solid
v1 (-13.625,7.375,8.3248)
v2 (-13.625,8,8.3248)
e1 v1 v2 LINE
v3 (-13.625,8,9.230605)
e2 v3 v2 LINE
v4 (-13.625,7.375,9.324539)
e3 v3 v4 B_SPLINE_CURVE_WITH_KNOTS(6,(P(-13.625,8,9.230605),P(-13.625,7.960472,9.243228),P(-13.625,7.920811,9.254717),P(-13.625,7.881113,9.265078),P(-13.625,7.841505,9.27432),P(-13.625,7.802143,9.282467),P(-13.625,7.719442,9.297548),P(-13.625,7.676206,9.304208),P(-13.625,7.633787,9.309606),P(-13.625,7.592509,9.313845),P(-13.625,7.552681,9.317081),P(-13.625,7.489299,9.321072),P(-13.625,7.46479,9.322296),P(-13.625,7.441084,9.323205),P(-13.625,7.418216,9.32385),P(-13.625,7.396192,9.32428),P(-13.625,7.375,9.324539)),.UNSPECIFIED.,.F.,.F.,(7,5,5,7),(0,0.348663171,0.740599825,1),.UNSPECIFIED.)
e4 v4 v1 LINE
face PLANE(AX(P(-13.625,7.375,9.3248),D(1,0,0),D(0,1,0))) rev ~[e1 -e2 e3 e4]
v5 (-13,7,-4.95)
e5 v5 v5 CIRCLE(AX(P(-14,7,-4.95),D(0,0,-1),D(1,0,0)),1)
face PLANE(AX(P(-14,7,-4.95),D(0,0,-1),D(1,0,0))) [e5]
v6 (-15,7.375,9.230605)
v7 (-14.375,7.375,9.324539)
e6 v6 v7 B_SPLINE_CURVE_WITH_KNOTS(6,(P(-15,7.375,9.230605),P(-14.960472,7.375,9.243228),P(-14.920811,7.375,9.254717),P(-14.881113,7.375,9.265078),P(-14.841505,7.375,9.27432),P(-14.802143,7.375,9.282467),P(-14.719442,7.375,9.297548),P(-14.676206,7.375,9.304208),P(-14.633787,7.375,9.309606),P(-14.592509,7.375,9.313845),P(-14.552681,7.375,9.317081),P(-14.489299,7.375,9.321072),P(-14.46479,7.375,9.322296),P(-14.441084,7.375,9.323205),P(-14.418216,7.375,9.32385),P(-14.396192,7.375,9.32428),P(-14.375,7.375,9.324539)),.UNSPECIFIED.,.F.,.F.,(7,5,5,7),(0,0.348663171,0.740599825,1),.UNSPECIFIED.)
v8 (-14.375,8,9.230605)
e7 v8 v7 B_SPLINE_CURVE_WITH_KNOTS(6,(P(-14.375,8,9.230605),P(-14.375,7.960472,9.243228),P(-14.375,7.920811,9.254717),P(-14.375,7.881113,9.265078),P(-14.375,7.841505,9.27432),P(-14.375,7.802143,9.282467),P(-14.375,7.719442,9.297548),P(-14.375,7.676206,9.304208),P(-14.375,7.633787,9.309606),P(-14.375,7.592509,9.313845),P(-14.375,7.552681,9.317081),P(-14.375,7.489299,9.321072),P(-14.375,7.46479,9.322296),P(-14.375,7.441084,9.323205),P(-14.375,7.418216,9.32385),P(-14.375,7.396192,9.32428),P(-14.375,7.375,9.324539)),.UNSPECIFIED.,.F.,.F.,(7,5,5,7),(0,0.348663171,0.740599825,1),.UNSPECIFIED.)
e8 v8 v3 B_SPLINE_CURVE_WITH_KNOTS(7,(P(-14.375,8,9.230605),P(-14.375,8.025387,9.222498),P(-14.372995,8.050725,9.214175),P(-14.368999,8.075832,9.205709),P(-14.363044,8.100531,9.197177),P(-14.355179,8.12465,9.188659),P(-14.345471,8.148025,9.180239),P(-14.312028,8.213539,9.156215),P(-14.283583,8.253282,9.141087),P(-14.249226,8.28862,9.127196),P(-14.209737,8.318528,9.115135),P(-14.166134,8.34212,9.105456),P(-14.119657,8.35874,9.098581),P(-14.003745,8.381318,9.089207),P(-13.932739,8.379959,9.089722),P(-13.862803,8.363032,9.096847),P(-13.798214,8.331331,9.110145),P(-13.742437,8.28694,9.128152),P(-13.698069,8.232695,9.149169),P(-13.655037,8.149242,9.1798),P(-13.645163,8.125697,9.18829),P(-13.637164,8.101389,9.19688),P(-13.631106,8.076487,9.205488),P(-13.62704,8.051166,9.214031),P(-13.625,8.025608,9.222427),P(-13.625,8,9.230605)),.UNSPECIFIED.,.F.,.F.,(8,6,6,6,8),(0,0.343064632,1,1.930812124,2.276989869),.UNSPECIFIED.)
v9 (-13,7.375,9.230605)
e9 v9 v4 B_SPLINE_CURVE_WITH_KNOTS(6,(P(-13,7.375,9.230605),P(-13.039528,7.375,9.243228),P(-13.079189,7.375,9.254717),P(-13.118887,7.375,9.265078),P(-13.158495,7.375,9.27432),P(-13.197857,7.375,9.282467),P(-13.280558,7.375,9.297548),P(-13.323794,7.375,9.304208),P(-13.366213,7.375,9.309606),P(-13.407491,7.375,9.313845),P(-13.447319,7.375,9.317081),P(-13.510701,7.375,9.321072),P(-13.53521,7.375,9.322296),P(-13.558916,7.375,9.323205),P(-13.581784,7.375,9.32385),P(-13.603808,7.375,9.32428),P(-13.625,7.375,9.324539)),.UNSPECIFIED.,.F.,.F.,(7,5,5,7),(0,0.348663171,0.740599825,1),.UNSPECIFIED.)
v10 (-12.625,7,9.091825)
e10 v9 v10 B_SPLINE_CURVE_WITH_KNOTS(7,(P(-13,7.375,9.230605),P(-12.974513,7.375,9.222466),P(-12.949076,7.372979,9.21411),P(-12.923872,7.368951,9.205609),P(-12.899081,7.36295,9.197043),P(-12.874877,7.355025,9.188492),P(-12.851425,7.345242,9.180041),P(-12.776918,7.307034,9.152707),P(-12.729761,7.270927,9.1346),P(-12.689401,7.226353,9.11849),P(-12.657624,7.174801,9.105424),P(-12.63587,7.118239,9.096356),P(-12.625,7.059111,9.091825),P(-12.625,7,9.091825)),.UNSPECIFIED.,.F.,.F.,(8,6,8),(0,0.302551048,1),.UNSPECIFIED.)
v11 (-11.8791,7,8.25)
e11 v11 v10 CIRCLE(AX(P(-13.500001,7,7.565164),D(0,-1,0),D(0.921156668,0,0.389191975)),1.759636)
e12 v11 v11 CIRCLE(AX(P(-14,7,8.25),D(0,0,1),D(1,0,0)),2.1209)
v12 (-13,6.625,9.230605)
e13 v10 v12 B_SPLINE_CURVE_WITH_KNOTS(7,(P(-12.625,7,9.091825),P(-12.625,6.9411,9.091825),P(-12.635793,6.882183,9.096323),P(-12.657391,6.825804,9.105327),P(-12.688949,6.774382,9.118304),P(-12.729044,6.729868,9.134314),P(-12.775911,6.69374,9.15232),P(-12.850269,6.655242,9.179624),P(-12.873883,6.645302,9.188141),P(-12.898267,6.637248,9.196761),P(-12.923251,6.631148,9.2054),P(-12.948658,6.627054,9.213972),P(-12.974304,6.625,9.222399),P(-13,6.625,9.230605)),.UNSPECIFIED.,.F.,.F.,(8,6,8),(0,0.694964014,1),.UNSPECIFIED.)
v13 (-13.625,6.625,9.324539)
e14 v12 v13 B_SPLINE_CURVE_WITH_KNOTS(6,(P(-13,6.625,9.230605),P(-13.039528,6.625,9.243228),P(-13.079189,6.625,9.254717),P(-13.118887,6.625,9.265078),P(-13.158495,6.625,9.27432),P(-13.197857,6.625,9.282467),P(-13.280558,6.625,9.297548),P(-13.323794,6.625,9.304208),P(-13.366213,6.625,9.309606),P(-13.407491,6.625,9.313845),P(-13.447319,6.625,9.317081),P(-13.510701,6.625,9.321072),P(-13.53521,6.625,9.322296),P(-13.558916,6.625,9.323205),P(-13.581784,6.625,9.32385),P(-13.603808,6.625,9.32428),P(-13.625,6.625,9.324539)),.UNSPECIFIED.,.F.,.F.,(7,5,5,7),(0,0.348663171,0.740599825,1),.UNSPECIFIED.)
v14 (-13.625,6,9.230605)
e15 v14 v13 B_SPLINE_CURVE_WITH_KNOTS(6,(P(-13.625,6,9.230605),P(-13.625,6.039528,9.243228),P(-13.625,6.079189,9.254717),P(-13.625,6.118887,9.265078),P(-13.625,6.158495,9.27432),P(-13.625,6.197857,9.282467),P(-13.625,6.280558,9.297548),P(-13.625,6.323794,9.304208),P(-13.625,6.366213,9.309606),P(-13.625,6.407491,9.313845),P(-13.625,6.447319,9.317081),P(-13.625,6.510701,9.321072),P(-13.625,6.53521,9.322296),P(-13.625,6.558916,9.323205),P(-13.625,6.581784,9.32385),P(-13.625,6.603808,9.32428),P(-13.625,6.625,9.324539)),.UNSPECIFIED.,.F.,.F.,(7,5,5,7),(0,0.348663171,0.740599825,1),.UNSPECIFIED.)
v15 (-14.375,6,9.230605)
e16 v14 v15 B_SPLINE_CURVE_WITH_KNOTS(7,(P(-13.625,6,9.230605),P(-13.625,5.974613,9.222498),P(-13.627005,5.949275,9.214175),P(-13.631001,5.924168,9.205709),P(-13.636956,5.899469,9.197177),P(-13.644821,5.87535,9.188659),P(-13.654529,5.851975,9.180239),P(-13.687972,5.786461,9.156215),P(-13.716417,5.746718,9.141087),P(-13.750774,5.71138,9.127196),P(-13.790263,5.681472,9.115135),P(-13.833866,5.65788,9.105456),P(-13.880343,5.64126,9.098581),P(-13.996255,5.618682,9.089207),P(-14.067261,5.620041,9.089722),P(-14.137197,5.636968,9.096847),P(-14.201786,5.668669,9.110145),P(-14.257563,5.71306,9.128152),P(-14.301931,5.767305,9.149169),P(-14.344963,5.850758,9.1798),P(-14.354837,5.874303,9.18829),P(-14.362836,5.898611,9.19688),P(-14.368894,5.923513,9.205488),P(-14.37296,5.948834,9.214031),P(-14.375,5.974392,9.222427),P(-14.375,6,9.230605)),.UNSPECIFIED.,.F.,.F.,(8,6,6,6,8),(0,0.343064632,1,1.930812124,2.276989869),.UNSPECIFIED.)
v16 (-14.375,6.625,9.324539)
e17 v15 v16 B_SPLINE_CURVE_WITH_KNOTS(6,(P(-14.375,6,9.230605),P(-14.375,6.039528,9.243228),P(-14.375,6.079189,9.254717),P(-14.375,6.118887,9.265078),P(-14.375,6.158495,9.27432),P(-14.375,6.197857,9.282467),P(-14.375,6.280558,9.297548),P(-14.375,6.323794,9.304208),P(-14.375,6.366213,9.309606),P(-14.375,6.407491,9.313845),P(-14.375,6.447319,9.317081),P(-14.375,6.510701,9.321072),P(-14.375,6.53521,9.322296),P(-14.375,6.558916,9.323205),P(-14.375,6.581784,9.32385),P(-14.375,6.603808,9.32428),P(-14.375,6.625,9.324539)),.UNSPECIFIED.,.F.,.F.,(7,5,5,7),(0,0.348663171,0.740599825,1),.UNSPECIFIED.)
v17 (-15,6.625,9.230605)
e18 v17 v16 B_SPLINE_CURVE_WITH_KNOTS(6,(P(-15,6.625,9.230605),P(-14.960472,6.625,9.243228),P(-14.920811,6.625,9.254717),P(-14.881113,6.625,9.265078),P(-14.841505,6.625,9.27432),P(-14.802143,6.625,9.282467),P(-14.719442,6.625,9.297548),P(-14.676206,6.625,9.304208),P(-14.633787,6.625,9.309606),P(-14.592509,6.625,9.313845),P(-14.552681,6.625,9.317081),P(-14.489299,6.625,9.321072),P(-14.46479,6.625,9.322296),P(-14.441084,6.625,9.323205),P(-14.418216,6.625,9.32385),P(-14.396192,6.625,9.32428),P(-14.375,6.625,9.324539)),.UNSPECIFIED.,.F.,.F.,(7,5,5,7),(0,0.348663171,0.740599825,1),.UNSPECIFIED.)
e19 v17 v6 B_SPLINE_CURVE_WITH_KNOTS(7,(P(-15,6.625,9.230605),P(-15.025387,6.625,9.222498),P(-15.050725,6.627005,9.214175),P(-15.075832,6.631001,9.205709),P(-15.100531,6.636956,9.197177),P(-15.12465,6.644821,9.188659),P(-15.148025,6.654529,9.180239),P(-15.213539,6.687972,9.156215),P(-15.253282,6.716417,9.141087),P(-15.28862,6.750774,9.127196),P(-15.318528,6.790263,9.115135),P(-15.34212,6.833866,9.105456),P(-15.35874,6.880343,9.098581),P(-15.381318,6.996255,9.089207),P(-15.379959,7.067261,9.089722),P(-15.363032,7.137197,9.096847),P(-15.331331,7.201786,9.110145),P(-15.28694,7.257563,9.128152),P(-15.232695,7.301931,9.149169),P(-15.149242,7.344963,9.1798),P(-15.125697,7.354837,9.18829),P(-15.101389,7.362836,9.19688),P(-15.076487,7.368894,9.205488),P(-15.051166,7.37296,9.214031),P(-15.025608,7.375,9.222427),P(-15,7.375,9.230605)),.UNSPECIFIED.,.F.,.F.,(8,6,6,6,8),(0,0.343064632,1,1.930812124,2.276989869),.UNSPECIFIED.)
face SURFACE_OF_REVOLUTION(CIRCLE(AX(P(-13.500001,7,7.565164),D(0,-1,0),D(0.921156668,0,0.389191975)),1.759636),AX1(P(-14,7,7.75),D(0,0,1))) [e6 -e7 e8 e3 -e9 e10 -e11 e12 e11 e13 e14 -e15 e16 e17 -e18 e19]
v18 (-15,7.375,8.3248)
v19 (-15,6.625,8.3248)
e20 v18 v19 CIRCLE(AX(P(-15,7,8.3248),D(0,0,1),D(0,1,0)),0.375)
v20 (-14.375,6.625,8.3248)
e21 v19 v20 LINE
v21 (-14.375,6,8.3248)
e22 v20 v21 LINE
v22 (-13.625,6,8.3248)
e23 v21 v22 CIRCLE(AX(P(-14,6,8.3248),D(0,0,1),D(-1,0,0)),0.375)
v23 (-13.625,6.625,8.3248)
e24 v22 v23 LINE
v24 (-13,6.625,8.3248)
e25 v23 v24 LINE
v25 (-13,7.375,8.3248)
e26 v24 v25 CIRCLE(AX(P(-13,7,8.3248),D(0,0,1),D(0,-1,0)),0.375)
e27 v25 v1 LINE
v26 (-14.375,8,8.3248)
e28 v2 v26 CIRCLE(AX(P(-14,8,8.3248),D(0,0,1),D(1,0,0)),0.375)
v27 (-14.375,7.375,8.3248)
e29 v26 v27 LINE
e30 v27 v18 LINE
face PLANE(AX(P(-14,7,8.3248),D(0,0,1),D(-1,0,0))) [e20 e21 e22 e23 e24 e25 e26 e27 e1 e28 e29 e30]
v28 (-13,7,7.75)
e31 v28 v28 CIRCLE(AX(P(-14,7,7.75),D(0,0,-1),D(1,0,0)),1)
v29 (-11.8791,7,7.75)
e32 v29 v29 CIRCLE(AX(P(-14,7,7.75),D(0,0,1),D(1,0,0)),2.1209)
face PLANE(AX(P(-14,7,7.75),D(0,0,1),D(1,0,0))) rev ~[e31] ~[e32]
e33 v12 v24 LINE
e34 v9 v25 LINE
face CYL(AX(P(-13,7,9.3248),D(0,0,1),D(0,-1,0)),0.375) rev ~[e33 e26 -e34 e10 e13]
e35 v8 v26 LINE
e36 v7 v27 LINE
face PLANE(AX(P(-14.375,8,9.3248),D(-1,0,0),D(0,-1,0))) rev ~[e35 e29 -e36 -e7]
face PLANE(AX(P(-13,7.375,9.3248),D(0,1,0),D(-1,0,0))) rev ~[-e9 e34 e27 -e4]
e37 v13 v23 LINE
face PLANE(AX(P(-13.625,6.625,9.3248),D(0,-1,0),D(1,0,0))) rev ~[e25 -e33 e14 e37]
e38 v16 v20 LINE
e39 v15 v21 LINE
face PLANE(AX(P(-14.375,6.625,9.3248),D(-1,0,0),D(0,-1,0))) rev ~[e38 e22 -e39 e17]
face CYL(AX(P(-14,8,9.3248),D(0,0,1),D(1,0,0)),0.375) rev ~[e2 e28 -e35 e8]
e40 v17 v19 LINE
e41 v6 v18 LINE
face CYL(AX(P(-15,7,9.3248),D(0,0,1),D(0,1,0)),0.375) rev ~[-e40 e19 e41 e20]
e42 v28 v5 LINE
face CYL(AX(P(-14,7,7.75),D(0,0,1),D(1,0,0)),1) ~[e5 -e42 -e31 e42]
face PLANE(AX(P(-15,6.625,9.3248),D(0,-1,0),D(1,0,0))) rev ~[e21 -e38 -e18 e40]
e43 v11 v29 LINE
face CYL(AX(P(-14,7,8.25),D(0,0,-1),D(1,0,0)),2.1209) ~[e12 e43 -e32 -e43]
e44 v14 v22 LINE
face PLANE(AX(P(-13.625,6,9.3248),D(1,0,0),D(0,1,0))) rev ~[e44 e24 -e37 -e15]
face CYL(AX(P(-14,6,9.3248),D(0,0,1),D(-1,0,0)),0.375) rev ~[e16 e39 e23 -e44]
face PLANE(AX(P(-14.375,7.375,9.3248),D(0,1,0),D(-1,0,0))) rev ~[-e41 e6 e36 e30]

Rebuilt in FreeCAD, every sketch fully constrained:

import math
import FreeCAD as App
import Part
import Sketcher

V = App.Vector

doc = App.newDocument("Part")
body = doc.addObject("PartDesign::Body", "Body")

sketch1 = body.newObject("Sketcher::SketchObject", "Sketch")
sketch1.AttachmentSupport = (doc.getObject("XZ_Plane"), [""])
sketch1.MapMode = "FlatFace"
sketch1.addGeometry(Part.LineSegment(V(0, 1.6, 0), V(0, 0, 0)), False)
sketch1.addGeometry(Part.LineSegment(V(0, 0, 0), V(2.1, 0, 0)), False)
sketch1.addGeometry(Part.LineSegment(V(2.1, 0, 0), V(2.1, 0.5, 0)), False)
sketch1.addGeometry(Part.ArcOfCircle(Part.Circle(V(0.5, -0.2, 0), V(0, 0, 1), 1.8), math.radians(23), math.radians(90)), False)
sketch1.addGeometry(Part.LineSegment(V(0.5, 1.6, 0), V(0, 1.6, 0)), False)
sketch1.addConstraint(Sketcher.Constraint("Coincident", 0, 2, 1, 1))
sketch1.addConstraint(Sketcher.Constraint("Coincident", 1, 2, 2, 1))
sketch1.addConstraint(Sketcher.Constraint("Coincident", 2, 2, 3, 1))
sketch1.addConstraint(Sketcher.Constraint("Tangent", 3, 2, 4, 1))
sketch1.addConstraint(Sketcher.Constraint("Coincident", 4, 2, 0, 1))
sketch1.addConstraint(Sketcher.Constraint("Vertical", 0))
sketch1.addConstraint(Sketcher.Constraint("Horizontal", 1))
sketch1.addConstraint(Sketcher.Constraint("Vertical", 2))
sketch1.addConstraint(Sketcher.Constraint("Horizontal", 4))
sketch1.addConstraint(Sketcher.Constraint("Coincident", 0, 2, -1, 1))
sketch1.addConstraint(Sketcher.Constraint("Equal", 4, 2))
sketch1.addConstraint(Sketcher.Constraint("DistanceX", 4, 2, 4, 1, 0.5))
sketch1.addConstraint(Sketcher.Constraint("DistanceX", 1, 1, 1, 2, 2.1209))
sketch1.addConstraint(Sketcher.Constraint("DistanceY", 0, 2, 0, 1, 1.5748))
revolution = body.newObject("PartDesign::Revolution", "Revolution")
revolution.Profile = sketch1
revolution.ReferenceAxis = (sketch1, ["V_Axis"])
revolution.Angle = 360

sketch2 = body.newObject("Sketcher::SketchObject", "Sketch001")
sketch2.AttachmentSupport = (doc.getObject("XY_Plane"), [""])
sketch2.MapMode = "FlatFace"
sketch2.AttachmentOffset = App.Placement(V(0, 0, 1.5748), App.Rotation())
sketch2.addGeometry(Part.ArcOfCircle(Part.Circle(V(0, -1, 0), V(0, 0, 1), 0.38), math.radians(180), math.radians(360)), False)
sketch2.addGeometry(Part.LineSegment(V(0.38, -1, 0), V(0.38, -0.38, 0)), False)
sketch2.addGeometry(Part.LineSegment(V(0.38, -0.38, 0), V(1, -0.38, 0)), False)
sketch2.addGeometry(Part.ArcOfCircle(Part.Circle(V(1, 0, 0), V(0, 0, 1), 0.38), math.radians(-90), math.radians(90)), False)
sketch2.addGeometry(Part.LineSegment(V(1, 0.38, 0), V(0.38, 0.38, 0)), False)
sketch2.addGeometry(Part.LineSegment(V(0.38, 0.38, 0), V(0.38, 1, 0)), False)
sketch2.addGeometry(Part.ArcOfCircle(Part.Circle(V(0, 1, 0), V(0, 0, 1), 0.38), math.radians(0), math.radians(180)), False)
sketch2.addGeometry(Part.LineSegment(V(-0.38, 1, 0), V(-0.38, 0.38, 0)), False)
sketch2.addGeometry(Part.LineSegment(V(-0.38, 0.38, 0), V(-1, 0.38, 0)), False)
sketch2.addGeometry(Part.ArcOfCircle(Part.Circle(V(-1, 0, 0), V(0, 0, 1), 0.38), math.radians(90), math.radians(270)), False)
sketch2.addGeometry(Part.LineSegment(V(-1, -0.38, 0), V(-0.38, -0.38, 0)), False)
sketch2.addGeometry(Part.LineSegment(V(-0.38, -0.38, 0), V(-0.38, -1, 0)), False)
sketch2.addConstraint(Sketcher.Constraint("Tangent", 0, 2, 1, 1))
sketch2.addConstraint(Sketcher.Constraint("Coincident", 1, 2, 2, 1))
sketch2.addConstraint(Sketcher.Constraint("Tangent", 2, 2, 3, 1))
sketch2.addConstraint(Sketcher.Constraint("Tangent", 3, 2, 4, 1))
sketch2.addConstraint(Sketcher.Constraint("Coincident", 4, 2, 5, 1))
sketch2.addConstraint(Sketcher.Constraint("Tangent", 5, 2, 6, 1))
sketch2.addConstraint(Sketcher.Constraint("Tangent", 6, 2, 7, 1))
sketch2.addConstraint(Sketcher.Constraint("Coincident", 7, 2, 8, 1))
sketch2.addConstraint(Sketcher.Constraint("Tangent", 8, 2, 9, 1))
sketch2.addConstraint(Sketcher.Constraint("Tangent", 9, 2, 10, 1))
sketch2.addConstraint(Sketcher.Constraint("Coincident", 10, 2, 11, 1))
sketch2.addConstraint(Sketcher.Constraint("Tangent", 11, 2, 0, 1))
sketch2.addConstraint(Sketcher.Constraint("Vertical", 1))
sketch2.addConstraint(Sketcher.Constraint("Horizontal", 2))
sketch2.addConstraint(Sketcher.Constraint("Horizontal", 4))
sketch2.addConstraint(Sketcher.Constraint("Vertical", 5))
sketch2.addConstraint(Sketcher.Constraint("Vertical", 7))
sketch2.addConstraint(Sketcher.Constraint("Horizontal", 8))
sketch2.addConstraint(Sketcher.Constraint("Horizontal", 10))
sketch2.addConstraint(Sketcher.Constraint("Vertical", 11))
sketch2.addConstraint(Sketcher.Constraint("Equal", 0, 3))
sketch2.addConstraint(Sketcher.Constraint("Equal", 3, 6))
sketch2.addConstraint(Sketcher.Constraint("Equal", 6, 9))
sketch2.addConstraint(Sketcher.Constraint("Symmetric", 0, 3, 6, 3, -1, 1))
sketch2.addConstraint(Sketcher.Constraint("Symmetric", 3, 3, 9, 3, -1, 1))
sketch2.addConstraint(Sketcher.Constraint("Symmetric", 4, 2, 7, 2, -2))
sketch2.addConstraint(Sketcher.Constraint("Equal", 10, 1))
sketch2.addConstraint(Sketcher.Constraint("DistanceY", 0, 3, -1, 1, 1.0))
sketch2.addConstraint(Sketcher.Constraint("Radius", 0, 0.375))
pocket1 = body.newObject("PartDesign::Pocket", "Pocket")
pocket1.Profile = sketch2
pocket1.Length = 1

sketch3 = body.newObject("Sketcher::SketchObject", "Sketch002")
sketch3.AttachmentSupport = (doc.getObject("XY_Plane"), [""])
sketch3.MapMode = "FlatFace"
sketch3.addGeometry(Part.Circle(V(0, 0, 0), V(0, 0, 1), 1), False)
sketch3.addConstraint(Sketcher.Constraint("Coincident", 0, 3, -1, 1))
sketch3.addConstraint(Sketcher.Constraint("Diameter", 0, 2.0))
pad1 = body.newObject("PartDesign::Pad", "Pad")
pad1.Profile = sketch3
pad1.Length = 12.7
pad1.Reversed = True
body2 = doc.addObject("PartDesign::Body", "Body001")
doc.recompute()

body.Placement = App.Placement(V(-14, 7, 7.75), App.Rotation(V(0, 0, 1), 0))
boolean = body2.newObject("PartDesign::Boolean", "Boolean")
boolean.Type = "Fuse"
boolean.addObjects([body])

doc.recompute()
